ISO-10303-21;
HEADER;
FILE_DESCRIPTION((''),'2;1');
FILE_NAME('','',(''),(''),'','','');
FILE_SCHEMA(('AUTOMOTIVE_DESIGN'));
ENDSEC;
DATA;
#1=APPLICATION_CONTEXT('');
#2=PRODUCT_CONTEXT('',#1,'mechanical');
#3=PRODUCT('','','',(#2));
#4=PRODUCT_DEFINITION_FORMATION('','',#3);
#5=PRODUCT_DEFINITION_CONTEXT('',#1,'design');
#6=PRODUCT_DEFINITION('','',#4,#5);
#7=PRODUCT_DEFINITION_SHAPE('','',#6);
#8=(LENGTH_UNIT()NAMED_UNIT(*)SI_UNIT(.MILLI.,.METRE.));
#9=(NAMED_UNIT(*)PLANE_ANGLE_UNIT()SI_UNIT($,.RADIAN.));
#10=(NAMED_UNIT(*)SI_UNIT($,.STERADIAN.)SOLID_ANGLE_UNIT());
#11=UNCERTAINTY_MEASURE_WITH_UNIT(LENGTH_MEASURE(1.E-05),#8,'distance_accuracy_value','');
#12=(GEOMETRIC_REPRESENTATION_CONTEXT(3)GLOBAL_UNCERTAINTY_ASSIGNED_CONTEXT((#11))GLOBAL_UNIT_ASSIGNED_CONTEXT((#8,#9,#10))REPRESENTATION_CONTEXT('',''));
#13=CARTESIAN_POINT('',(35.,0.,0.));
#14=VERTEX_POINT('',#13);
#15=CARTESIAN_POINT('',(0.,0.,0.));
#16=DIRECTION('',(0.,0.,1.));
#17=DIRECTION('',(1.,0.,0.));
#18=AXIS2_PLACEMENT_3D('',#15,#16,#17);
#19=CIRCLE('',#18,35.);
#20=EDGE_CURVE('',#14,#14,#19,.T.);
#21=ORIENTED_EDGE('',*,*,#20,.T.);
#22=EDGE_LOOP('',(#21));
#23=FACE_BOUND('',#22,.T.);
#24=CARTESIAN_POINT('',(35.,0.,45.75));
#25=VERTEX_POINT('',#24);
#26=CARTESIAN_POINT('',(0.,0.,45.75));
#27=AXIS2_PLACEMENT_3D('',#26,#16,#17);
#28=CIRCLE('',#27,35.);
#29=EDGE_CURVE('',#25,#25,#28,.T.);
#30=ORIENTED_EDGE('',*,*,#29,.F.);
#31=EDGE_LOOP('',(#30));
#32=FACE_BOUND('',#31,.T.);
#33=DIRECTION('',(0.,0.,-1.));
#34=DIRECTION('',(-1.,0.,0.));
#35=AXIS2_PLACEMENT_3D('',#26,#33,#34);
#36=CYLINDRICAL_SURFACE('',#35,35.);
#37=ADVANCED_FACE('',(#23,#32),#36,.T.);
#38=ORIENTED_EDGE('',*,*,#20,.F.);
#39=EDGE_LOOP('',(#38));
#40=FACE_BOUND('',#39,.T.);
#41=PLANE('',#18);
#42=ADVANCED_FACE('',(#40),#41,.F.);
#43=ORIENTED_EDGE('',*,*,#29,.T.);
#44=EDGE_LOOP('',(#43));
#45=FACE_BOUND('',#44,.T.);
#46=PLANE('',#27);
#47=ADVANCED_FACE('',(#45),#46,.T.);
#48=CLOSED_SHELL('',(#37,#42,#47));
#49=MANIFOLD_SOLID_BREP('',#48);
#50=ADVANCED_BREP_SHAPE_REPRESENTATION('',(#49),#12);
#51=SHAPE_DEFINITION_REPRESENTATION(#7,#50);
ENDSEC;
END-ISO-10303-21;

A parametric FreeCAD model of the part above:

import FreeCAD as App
import Part
import Sketcher

doc = App.newDocument("Part")
body = doc.addObject("PartDesign::Body", "Body")

# Sketch on XY plane
sketch1 = body.newObject("Sketcher::SketchObject", "Sketch")
sketch1.AttachmentSupport = (doc.getObject("XY_Plane"), [""])
sketch1.MapMode = "FlatFace"
sketch1.addGeometry(Part.Circle(App.Vector(0, 0, 0), App.Vector(0, 0, 1), 35), False)
sketch1.addConstraint(Sketcher.Constraint("Coincident", 0, 3, -1, 1))
sketch1.addConstraint(Sketcher.Constraint("Diameter", 0, 70.0))
pad1 = body.newObject("PartDesign::Pad", "Pad")
pad1.Profile = sketch1
pad1.Length = 45.75

doc.recompute()
